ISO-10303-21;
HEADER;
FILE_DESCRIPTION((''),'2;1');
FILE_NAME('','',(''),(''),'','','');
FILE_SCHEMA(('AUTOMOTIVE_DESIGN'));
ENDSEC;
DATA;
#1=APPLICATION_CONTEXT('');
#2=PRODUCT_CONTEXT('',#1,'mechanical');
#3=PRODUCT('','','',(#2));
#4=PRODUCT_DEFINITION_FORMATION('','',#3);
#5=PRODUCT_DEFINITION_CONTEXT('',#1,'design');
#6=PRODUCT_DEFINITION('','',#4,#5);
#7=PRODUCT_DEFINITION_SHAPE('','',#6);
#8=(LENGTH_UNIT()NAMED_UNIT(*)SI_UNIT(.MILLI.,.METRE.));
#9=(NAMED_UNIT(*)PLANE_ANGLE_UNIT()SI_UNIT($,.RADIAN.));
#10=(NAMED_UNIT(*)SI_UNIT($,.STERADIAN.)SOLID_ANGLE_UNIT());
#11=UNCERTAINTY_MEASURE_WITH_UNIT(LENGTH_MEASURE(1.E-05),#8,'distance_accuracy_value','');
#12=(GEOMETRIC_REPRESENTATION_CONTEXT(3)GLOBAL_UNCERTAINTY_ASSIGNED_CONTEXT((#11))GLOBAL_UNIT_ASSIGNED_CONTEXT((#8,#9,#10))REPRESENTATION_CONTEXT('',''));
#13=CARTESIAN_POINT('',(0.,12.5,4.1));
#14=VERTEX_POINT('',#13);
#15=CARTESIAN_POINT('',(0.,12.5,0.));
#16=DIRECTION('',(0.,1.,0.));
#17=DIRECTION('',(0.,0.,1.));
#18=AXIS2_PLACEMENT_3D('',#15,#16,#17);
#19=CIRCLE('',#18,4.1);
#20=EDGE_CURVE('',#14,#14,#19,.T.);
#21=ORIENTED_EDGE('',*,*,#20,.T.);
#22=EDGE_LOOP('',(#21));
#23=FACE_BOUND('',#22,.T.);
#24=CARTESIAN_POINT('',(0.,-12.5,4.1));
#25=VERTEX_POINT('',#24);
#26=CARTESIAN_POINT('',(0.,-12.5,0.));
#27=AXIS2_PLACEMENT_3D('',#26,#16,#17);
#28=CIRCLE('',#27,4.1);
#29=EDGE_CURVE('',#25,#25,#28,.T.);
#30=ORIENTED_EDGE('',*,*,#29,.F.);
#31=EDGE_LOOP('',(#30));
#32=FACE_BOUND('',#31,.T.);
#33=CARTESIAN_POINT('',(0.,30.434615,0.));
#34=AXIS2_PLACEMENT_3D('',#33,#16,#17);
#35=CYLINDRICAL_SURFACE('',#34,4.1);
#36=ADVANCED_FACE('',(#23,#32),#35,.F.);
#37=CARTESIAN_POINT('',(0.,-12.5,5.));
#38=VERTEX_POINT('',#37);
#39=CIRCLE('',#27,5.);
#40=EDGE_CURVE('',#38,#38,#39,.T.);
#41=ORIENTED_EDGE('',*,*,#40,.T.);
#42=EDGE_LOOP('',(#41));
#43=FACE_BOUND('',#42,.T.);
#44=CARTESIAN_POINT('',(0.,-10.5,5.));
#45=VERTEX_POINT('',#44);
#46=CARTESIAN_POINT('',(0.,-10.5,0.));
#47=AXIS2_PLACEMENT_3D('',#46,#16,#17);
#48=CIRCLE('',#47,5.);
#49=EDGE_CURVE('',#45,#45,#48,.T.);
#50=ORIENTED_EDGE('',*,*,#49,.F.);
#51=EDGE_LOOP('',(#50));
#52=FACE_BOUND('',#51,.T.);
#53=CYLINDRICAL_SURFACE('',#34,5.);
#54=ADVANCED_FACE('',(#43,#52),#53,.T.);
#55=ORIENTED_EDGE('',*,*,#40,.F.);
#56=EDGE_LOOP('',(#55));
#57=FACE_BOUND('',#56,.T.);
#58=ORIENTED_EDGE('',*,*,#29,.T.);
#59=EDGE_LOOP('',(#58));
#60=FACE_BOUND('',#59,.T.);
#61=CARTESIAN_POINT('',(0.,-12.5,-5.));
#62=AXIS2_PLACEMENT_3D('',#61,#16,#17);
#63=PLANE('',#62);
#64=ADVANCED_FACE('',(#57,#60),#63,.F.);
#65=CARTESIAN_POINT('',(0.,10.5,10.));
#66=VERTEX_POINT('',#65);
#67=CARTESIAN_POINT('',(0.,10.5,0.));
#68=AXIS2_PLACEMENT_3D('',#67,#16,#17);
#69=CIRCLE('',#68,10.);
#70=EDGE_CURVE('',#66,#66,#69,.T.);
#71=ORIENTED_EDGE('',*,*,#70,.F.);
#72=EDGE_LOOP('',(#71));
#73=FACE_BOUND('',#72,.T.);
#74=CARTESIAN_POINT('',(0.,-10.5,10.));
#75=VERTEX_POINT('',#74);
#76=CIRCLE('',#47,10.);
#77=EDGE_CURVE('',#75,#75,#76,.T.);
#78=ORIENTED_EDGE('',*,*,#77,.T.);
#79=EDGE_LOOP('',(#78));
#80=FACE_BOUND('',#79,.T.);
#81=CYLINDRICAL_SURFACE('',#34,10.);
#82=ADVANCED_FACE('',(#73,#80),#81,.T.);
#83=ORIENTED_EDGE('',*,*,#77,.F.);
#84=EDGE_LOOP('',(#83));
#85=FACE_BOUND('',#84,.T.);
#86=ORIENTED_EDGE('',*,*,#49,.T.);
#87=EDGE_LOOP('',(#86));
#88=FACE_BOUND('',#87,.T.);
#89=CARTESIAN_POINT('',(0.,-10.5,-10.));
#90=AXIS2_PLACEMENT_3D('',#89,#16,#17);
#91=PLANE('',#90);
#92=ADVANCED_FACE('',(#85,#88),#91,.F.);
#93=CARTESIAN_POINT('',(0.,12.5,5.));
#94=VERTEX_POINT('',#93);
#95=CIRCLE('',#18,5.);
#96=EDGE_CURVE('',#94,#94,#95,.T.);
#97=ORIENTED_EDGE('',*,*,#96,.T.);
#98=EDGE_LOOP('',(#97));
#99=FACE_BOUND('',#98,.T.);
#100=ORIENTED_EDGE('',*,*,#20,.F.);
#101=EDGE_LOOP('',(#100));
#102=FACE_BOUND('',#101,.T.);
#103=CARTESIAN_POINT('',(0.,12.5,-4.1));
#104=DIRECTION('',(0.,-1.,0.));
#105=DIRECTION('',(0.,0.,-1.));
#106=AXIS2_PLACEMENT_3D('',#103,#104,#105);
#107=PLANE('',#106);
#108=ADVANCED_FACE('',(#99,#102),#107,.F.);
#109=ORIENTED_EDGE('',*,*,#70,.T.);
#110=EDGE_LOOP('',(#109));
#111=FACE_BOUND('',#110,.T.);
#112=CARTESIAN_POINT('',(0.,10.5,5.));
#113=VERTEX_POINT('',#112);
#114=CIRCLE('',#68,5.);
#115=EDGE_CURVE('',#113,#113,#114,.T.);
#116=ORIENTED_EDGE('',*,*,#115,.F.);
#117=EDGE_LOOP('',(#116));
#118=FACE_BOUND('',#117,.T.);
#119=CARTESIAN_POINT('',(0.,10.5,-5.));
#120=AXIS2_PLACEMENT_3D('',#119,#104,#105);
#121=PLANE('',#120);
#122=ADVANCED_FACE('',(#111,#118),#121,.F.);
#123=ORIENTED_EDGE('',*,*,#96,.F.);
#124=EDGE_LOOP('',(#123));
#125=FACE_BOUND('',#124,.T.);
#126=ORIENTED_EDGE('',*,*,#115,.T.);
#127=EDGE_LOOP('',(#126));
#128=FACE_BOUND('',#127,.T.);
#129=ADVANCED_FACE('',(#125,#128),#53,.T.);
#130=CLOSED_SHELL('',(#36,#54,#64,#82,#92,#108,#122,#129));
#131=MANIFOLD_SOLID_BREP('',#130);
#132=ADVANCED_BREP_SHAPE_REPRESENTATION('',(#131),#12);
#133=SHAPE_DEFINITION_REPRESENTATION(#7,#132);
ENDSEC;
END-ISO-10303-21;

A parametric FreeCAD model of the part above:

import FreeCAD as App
import Part
import Sketcher

V = App.Vector
Q = App.Units.Quantity


def add_polygon(sketch, points):
    """Adds a closed chain of lines whose ends are joined by coincident constraints."""
    first, n = sketch.GeometryCount, len(points)
    for a, b in zip(points, points[1:] + points[:1]):
        sketch.addGeometry(Part.LineSegment(App.Vector(*a, 0), App.Vector(*b, 0)), False)
    for i in range(n):
        sketch.addConstraint(Sketcher.Constraint("Coincident", first + i, 2, first + (i + 1) % n, 1))

doc = App.newDocument("Part")
body = doc.addObject("PartDesign::Body", "Body")

# Sketch on YZ plane
sketch1 = doc.addObject("Sketcher::SketchObject", "Sketch")
body.addObject(sketch1)
sketch1.AttachmentSupport = (doc.YZ_Plane, [""])
sketch1.MapMode = "FlatFace"
add_polygon(sketch1, [(12.5, -4.1), (-12.5, -4.1), (-12.5, -5), (-10.5, -5), (-10.5, -10), (10.5, -10), (10.5, -5), (12.5, -5)])  # lines 0-7
sketch1.addConstraint([
    Sketcher.Constraint("Horizontal", 0),
    Sketcher.Constraint("Vertical", 1),
    Sketcher.Constraint("Horizontal", 2),
    Sketcher.Constraint("Vertical", 3),
    Sketcher.Constraint("Horizontal", 4),
    Sketcher.Constraint("Vertical", 5),
    Sketcher.Constraint("Horizontal", 6),
    Sketcher.Constraint("Vertical", 7),
    Sketcher.Constraint("Symmetric", 2, 2, 5, 2, -2),
    Sketcher.Constraint("Equal", 2, 6),
    Sketcher.Constraint("DistanceX", 0, 2, 0, 1, Q("25 mm")),
    Sketcher.Constraint("DistanceX", 2, 1, 2, 2, Q("2 mm")),
    Sketcher.Constraint("DistanceY", 3, 2, 3, 1, Q("5 mm")),
    Sketcher.Constraint("DistanceY", 1, 2, 1, 1, Q("0.9 mm")),
    Sketcher.Constraint("DistanceY", 1, 2, -1, 1, Q("5 mm")),
])
revolution = doc.addObject("PartDesign::Revolution", "Revolution")
body.addObject(revolution)
revolution.Profile = sketch1
revolution.ReferenceAxis = (sketch1, ["H_Axis"])
revolution.Angle = 360

doc.recompute()
